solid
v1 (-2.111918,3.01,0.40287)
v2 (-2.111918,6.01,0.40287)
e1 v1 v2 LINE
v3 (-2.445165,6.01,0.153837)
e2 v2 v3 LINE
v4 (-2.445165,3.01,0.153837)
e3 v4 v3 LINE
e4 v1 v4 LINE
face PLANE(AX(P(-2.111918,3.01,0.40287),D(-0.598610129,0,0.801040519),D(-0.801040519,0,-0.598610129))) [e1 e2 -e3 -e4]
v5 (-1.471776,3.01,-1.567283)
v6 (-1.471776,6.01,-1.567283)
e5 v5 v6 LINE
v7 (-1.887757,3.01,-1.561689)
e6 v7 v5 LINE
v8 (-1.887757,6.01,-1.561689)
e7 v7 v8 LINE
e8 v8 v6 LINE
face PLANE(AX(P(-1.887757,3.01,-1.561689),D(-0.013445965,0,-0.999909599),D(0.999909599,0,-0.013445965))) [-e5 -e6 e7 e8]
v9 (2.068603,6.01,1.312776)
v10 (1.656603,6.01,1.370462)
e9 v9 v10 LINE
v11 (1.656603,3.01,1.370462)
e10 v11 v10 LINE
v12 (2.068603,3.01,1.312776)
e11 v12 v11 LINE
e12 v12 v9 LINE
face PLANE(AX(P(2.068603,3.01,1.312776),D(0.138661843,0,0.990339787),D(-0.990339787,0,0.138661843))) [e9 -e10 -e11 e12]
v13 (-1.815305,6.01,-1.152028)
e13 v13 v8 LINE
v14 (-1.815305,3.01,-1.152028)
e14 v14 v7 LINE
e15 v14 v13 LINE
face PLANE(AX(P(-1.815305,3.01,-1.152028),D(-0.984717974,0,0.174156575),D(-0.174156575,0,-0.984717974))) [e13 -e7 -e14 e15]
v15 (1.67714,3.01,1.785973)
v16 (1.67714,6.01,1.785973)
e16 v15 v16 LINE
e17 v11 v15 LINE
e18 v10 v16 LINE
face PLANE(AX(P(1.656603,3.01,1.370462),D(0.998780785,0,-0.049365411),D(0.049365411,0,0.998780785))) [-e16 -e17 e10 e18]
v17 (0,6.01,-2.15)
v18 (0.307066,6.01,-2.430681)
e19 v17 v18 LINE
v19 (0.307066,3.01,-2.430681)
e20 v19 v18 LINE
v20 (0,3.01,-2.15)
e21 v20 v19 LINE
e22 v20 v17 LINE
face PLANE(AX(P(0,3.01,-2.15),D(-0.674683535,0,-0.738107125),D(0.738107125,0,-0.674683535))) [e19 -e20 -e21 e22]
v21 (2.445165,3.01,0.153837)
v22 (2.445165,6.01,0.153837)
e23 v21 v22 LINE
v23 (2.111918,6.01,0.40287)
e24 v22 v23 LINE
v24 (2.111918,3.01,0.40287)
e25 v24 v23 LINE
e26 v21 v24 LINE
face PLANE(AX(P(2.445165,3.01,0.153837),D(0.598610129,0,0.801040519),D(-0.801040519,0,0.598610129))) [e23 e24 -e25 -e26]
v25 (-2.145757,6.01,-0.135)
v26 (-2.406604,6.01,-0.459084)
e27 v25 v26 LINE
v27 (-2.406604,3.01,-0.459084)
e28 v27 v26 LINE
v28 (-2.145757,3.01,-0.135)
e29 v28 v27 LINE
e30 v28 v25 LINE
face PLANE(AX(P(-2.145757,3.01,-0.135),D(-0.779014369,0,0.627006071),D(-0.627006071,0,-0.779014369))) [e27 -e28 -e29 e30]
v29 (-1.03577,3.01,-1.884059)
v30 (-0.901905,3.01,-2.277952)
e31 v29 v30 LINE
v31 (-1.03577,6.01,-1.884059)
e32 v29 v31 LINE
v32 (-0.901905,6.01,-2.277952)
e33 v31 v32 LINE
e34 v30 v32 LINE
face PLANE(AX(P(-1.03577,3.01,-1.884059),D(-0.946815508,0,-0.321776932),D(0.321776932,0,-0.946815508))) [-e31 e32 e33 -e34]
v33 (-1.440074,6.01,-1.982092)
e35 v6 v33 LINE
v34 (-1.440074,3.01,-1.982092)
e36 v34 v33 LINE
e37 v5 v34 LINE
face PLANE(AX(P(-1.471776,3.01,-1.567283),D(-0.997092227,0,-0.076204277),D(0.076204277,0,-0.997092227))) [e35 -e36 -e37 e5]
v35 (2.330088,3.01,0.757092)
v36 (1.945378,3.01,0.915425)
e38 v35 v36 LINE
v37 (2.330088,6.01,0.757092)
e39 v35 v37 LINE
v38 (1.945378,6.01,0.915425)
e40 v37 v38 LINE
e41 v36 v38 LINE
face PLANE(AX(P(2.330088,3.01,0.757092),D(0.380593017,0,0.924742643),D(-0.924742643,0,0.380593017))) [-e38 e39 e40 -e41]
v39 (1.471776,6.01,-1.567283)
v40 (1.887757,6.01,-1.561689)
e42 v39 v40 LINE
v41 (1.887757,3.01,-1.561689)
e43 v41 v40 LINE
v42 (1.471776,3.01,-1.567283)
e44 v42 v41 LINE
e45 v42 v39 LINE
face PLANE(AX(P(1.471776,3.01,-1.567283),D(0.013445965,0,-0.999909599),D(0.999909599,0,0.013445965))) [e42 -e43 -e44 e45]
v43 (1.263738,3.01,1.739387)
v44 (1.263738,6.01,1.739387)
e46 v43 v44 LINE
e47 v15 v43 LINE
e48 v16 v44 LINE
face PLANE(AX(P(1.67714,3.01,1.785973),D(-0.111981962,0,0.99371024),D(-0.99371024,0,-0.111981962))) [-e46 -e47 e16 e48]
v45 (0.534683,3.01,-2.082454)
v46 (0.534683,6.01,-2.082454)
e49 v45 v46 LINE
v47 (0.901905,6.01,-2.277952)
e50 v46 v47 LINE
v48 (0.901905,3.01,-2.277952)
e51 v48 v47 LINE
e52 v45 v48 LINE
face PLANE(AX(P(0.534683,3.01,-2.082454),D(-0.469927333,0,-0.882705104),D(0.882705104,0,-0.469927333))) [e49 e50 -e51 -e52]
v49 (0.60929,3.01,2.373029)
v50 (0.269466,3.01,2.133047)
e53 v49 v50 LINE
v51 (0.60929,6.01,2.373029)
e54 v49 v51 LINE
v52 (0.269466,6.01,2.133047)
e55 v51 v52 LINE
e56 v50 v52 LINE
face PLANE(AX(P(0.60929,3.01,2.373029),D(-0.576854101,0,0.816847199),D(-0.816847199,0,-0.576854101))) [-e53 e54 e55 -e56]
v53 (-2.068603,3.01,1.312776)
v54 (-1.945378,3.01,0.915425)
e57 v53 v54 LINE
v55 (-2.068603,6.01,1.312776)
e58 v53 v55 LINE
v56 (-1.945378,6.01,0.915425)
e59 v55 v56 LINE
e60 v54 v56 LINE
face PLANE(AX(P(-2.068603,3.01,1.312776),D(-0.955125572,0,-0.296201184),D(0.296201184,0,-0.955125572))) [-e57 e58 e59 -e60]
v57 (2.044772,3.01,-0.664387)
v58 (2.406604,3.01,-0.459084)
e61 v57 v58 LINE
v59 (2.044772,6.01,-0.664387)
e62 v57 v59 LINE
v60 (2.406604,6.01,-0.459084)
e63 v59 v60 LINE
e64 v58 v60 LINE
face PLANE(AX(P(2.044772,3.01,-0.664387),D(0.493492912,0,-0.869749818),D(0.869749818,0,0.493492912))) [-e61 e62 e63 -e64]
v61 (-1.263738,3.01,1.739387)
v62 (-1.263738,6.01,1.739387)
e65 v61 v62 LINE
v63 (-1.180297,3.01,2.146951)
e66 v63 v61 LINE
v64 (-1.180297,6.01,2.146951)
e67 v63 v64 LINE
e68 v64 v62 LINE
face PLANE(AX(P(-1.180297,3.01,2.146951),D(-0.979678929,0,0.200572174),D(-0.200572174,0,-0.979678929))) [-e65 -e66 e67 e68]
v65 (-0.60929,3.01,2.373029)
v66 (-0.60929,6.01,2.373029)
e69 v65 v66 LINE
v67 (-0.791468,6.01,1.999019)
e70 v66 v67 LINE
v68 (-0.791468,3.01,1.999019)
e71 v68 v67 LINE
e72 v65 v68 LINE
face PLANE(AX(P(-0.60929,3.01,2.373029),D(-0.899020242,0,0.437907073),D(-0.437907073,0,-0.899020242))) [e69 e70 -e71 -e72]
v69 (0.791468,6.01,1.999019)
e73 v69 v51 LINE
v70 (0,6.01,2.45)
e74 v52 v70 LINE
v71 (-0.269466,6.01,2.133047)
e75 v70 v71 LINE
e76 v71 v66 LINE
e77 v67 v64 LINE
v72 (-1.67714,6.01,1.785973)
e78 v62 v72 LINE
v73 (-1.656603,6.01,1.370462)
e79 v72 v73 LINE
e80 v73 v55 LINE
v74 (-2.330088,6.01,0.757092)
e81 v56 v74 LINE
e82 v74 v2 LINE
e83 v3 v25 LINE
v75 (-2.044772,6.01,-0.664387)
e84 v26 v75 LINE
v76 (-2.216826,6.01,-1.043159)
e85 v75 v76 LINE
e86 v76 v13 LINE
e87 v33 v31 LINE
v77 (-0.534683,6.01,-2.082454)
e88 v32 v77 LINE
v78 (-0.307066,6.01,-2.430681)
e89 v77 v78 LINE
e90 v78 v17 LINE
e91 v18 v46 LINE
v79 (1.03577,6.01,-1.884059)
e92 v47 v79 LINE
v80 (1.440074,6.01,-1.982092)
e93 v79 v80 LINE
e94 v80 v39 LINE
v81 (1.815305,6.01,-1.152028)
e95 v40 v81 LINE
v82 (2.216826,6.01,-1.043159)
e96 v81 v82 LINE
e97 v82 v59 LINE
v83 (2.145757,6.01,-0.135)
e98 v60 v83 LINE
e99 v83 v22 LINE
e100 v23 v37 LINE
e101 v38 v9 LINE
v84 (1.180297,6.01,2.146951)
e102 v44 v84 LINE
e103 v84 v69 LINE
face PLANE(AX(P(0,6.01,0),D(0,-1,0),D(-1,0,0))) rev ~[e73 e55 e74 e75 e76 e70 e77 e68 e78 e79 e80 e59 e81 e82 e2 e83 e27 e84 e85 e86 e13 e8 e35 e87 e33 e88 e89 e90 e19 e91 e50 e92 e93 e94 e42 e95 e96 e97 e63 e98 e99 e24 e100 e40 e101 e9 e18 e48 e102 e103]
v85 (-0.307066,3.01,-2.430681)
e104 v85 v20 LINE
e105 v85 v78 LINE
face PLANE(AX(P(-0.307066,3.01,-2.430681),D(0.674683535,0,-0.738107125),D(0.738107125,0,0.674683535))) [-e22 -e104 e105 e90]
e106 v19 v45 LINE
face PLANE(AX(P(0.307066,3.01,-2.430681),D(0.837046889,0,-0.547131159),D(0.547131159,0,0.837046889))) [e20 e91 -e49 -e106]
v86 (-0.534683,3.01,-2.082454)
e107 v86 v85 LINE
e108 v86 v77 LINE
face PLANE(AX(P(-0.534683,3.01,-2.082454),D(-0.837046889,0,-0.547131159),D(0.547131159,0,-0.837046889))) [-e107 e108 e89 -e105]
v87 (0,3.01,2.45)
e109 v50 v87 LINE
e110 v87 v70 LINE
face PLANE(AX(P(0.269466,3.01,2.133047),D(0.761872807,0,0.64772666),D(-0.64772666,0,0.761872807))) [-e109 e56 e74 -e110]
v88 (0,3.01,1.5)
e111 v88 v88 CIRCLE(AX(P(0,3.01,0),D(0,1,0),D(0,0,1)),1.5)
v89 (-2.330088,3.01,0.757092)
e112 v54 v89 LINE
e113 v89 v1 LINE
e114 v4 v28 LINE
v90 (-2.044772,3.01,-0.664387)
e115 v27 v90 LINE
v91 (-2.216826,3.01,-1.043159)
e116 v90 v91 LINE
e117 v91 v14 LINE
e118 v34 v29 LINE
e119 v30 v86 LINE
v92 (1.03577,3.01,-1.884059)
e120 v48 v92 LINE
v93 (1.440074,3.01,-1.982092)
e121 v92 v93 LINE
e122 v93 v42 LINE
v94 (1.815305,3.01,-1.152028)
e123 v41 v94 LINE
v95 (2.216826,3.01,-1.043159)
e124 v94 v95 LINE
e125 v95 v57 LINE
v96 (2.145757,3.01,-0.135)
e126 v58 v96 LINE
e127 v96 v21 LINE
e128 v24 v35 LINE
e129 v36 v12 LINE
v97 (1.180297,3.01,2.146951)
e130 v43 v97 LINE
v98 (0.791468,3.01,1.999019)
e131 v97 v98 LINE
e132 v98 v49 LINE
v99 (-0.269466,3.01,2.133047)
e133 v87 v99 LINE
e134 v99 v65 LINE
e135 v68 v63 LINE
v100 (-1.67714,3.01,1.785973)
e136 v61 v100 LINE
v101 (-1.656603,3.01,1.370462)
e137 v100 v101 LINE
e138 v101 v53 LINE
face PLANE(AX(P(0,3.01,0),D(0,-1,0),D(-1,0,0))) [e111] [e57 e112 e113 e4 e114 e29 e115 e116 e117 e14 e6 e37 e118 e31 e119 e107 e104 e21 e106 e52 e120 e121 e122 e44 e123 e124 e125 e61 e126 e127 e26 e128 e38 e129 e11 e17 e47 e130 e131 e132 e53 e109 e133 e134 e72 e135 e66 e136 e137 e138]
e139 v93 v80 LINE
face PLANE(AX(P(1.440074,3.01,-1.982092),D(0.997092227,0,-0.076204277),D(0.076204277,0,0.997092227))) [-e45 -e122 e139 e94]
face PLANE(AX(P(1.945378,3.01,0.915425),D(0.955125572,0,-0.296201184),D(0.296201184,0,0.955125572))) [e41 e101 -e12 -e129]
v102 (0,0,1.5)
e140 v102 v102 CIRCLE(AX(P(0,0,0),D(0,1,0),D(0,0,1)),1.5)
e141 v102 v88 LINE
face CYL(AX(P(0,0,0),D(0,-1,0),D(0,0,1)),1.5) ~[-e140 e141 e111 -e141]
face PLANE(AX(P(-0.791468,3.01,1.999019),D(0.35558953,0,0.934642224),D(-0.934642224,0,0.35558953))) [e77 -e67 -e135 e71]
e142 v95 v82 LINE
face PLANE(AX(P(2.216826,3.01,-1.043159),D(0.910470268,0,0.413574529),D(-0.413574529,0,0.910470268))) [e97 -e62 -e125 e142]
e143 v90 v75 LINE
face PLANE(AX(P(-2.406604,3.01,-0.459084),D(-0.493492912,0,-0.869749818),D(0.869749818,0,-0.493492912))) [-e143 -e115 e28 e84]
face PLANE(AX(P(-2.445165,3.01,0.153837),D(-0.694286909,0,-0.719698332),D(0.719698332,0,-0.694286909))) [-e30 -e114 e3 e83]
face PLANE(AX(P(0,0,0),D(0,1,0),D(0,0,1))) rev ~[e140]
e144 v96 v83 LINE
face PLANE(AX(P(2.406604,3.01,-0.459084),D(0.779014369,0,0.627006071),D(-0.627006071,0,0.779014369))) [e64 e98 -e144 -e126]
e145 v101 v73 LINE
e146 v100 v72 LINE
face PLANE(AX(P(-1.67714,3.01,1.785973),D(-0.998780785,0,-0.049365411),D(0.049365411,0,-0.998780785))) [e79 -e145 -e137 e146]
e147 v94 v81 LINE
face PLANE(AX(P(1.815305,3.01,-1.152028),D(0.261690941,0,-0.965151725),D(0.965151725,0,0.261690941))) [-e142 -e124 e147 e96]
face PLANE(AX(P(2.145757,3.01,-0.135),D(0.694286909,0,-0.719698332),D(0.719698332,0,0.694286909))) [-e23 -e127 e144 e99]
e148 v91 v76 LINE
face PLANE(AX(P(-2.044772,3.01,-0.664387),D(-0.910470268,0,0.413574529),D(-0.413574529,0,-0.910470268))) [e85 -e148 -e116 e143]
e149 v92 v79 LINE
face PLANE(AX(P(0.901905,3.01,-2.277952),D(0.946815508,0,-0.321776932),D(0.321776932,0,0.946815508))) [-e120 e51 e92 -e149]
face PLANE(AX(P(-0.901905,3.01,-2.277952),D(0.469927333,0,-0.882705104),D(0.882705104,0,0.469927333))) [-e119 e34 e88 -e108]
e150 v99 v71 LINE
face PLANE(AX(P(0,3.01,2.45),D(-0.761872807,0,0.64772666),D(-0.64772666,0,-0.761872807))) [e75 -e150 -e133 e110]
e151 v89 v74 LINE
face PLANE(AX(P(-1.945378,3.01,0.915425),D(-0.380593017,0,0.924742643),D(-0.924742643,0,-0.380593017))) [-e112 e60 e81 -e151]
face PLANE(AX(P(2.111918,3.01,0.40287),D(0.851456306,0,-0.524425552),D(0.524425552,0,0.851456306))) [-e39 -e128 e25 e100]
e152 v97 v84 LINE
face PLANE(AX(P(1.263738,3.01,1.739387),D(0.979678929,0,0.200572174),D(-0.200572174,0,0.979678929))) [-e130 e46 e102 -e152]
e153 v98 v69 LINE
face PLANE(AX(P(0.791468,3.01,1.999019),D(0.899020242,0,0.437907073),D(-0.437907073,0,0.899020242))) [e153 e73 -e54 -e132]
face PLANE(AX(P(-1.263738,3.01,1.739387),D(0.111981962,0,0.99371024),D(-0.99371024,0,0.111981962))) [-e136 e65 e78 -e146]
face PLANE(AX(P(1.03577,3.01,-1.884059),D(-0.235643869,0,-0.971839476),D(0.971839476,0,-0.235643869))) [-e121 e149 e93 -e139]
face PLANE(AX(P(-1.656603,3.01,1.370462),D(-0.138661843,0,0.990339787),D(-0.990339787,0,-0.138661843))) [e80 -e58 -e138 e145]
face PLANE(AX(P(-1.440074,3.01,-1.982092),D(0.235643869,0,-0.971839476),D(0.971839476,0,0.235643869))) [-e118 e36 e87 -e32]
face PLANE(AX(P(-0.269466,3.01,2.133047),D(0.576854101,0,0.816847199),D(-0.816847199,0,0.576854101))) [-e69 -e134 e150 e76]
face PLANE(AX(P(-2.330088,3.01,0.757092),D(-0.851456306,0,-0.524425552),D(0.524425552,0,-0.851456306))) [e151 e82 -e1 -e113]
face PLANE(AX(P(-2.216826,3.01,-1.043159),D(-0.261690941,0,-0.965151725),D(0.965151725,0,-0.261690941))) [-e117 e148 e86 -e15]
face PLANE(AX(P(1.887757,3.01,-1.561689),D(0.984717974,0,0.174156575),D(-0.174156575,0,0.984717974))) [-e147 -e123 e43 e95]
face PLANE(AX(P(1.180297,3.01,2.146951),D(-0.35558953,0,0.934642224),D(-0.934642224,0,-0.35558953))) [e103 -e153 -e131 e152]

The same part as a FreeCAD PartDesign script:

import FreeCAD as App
import Part
import Sketcher


def add_polygon(sketch, points):
    """Adds a closed chain of lines whose ends are joined by coincident constraints."""
    first, n = sketch.GeometryCount, len(points)
    for a, b in zip(points, points[1:] + points[:1]):
        sketch.addGeometry(Part.LineSegment(App.Vector(*a, 0), App.Vector(*b, 0)), False)
    for i in range(n):
        sketch.addConstraint(Sketcher.Constraint("Coincident", first + i, 2, first + (i + 1) % n, 1))

doc = App.newDocument("Part")
body = doc.addObject("PartDesign::Body", "Body")

# Sketch on XZ plane
sketch1 = body.newObject("Sketcher::SketchObject", "Sketch")
sketch1.AttachmentSupport = (doc.getObject("XZ_Plane"), [""])
sketch1.MapMode = "FlatFace"
sketch1.addGeometry(Part.Circle(App.Vector(0, 0, 0), App.Vector(0, 0, 1), 1.5), False)
sketch1.addConstraint([
    Sketcher.Constraint("Coincident", 0, 3, -1, 1),
    Sketcher.Constraint("Diameter", 0, 3.0),
])
pad1 = body.newObject("PartDesign::Pad", "Pad")
pad1.Profile = sketch1
pad1.Length = 3.01
pad1.Reversed = True

# Sketch on XZ plane
sketch2 = body.newObject("Sketcher::SketchObject", "Sketch001")
sketch2.AttachmentSupport = (doc.getObject("XZ_Plane"), [""])
sketch2.MapMode = "FlatFace"
sketch2.AttachmentOffset = App.Placement(App.Vector(0, 0, -3.01), App.Rotation())
add_polygon(sketch2, [(0.534683, -2.082454), (0.307066, -2.430681), (0, -2.15), (-0.307066, -2.430681), (-0.534683, -2.082454), (-0.901905, -2.277952), (-1.03577, -1.884059), (-1.440074, -1.982092), (-1.471776, -1.567283), (-1.887757, -1.561689), (-1.815305, -1.152028), (-2.216826, -1.043159), (-2.044772, -0.664387), (-2.406604, -0.459084), (-2.145757, -0.135), (-2.445165, 0.153837), (-2.111918, 0.40287), (-2.330088, 0.757092), (-1.945378, 0.915425), (-2.068603, 1.312776), (-1.656603, 1.370462), (-1.67714, 1.785973), (-1.263738, 1.739387), (-1.180297, 2.146951), (-0.791468, 1.999019), (-0.60929, 2.373029), (-0.269466, 2.133047), (0, 2.45), (0.269466, 2.133047), (0.60929, 2.373029), (0.791468, 1.999019), (1.180297, 2.146951), (1.263738, 1.739387), (1.67714, 1.785973), (1.656603, 1.370462), (2.068603, 1.312776), (1.945378, 0.915425), (2.330088, 0.757092), (2.111918, 0.40287), (2.445165, 0.153837), (2.145757, -0.135), (2.406604, -0.459084), (2.044772, -0.664387), (2.216826, -1.043159), (1.815305, -1.152028), (1.887757, -1.561689), (1.471776, -1.567283), (1.440074, -1.982092), (1.03577, -1.884059), (0.901905, -2.277952)])  # lines 0-49
sketch2.addConstraint([
    Sketcher.Constraint("Symmetric", 0, 2, 2, 2, -2),
    Sketcher.Constraint("Symmetric", 25, 2, 27, 2, -2),
    Sketcher.Constraint("Symmetric", 24, 2, 28, 2, -2),
    Sketcher.Constraint("Symmetric", 23, 2, 29, 2, -2),
    Sketcher.Constraint("Symmetric", 22, 2, 30, 2, -2),
    Sketcher.Constraint("Symmetric", 21, 2, 31, 2, -2),
    Sketcher.Constraint("Symmetric", 20, 2, 32, 2, -2),
    Sketcher.Constraint("Symmetric", 19, 2, 33, 2, -2),
    Sketcher.Constraint("Symmetric", 18, 2, 34, 2, -2),
    Sketcher.Constraint("Symmetric", 17, 2, 35, 2, -2),
    Sketcher.Constraint("Symmetric", 16, 2, 36, 2, -2),
    Sketcher.Constraint("Symmetric", 15, 2, 37, 2, -2),
    Sketcher.Constraint("Symmetric", 14, 2, 38, 2, -2),
    Sketcher.Constraint("Symmetric", 13, 2, 39, 2, -2),
    Sketcher.Constraint("Symmetric", 12, 2, 40, 2, -2),
    Sketcher.Constraint("Symmetric", 11, 2, 41, 2, -2),
    Sketcher.Constraint("Symmetric", 10, 2, 42, 2, -2),
    Sketcher.Constraint("Symmetric", 9, 2, 43, 2, -2),
    Sketcher.Constraint("Symmetric", 8, 2, 44, 2, -2),
    Sketcher.Constraint("Symmetric", 7, 2, 45, 2, -2),
    Sketcher.Constraint("Symmetric", 6, 2, 46, 2, -2),
    Sketcher.Constraint("Symmetric", 5, 2, 47, 2, -2),
    Sketcher.Constraint("Symmetric", 4, 2, 48, 2, -2),
    Sketcher.Constraint("Symmetric", 3, 2, 49, 2, -2),
    Sketcher.Constraint("PointOnObject", 1, 2, -2),
    Sketcher.Constraint("PointOnObject", 26, 2, -2),
    Sketcher.Constraint("Equal", 0, 1),
    Sketcher.Constraint("Equal", 3, 4),
    Sketcher.Constraint("Equal", 4, 5),
    Sketcher.Constraint("Equal", 5, 6),
    Sketcher.Constraint("Equal", 6, 7),
    Sketcher.Constraint("Equal", 7, 8),
    Sketcher.Constraint("Equal", 8, 9),
    Sketcher.Constraint("Equal", 9, 10),
    Sketcher.Constraint("Equal", 10, 11),
    Sketcher.Constraint("Equal", 11, 12),
    Sketcher.Constraint("Equal", 12, 13),
    Sketcher.Constraint("Equal", 13, 14),
    Sketcher.Constraint("Equal", 14, 15),
    Sketcher.Constraint("Equal", 15, 16),
    Sketcher.Constraint("Equal", 16, 17),
    Sketcher.Constraint("Equal", 17, 18),
    Sketcher.Constraint("Equal", 18, 19),
    Sketcher.Constraint("Equal", 19, 20),
    Sketcher.Constraint("Equal", 20, 21),
    Sketcher.Constraint("Equal", 21, 22),
    Sketcher.Constraint("Equal", 22, 23),
    Sketcher.Constraint("Equal", 23, 24),
    Sketcher.Constraint("Equal", 24, 25),
    Sketcher.Constraint("Equal", 25, 26),
    Sketcher.Constraint("DistanceY", 1, 2, -1, 1, 2.15),
    Sketcher.Constraint("DistanceY", -1, 1, 26, 2, 2.45),
    Sketcher.Constraint("DistanceY", 13, 2, -1, 1, 0.135),
    Sketcher.Constraint("DistanceX", 13, 2, 8, 2, 0.258),
    Sketcher.Constraint("DistanceX", 18, 2, 19, 2, 0.412),
    Sketcher.Constraint("DistanceX", 23, 2, 25, 2, 0.522001),
    Sketcher.Constraint("DistanceY", 4, 2, 3, 2, 0.195499),
    Sketcher.Constraint("DistanceY", 2, 2, 7, 2, 0.863398),
    Sketcher.Constraint("DistanceX", 9, 2, 4, 2, 0.9134),
    Sketcher.Constraint("DistanceY", 5, 2, 10, 2, 0.8409),
    Sketcher.Constraint("DistanceX", 12, 2, 9, 2, 0.591299),
    Sketcher.Constraint("DistanceY", 7, 2, 12, 2, 1.108198),
    Sketcher.Constraint("Distance", 0, 0.416019),
    Sketcher.Constraint("DistanceY", 0, 2, -1, 1, 2.430681),
    Sketcher.Constraint("DistanceX", 5, 2, -1, 1, 1.03577),
    Sketcher.Constraint("DistanceY", 5, 2, -1, 1, 1.884059),
    Sketcher.Constraint("DistanceY", 8, 2, -1, 1, 1.561689),
    Sketcher.Constraint("DistanceY", -1, 1, 15, 2, 0.40287),
    Sketcher.Constraint("DistanceX", 16, 2, -1, 1, 2.330088),
    Sketcher.Constraint("DistanceY", -1, 1, 16, 2, 0.757092),
    Sketcher.Constraint("DistanceX", 17, 2, -1, 1, 1.945378),
    Sketcher.Constraint("DistanceY", -1, 1, 19, 2, 1.370462),
    Sketcher.Constraint("DistanceX", 20, 2, -1, 1, 1.67714),
    Sketcher.Constraint("DistanceX", 21, 2, -1, 1, 1.263738),
    Sketcher.Constraint("DistanceY", -1, 1, 22, 2, 2.146951),
    Sketcher.Constraint("DistanceY", -1, 1, 23, 2, 1.999019),
])
pad2 = body.newObject("PartDesign::Pad", "Pad001")
pad2.Profile = sketch2
pad2.Length = 3
pad2.Reversed = True

doc.recompute()
